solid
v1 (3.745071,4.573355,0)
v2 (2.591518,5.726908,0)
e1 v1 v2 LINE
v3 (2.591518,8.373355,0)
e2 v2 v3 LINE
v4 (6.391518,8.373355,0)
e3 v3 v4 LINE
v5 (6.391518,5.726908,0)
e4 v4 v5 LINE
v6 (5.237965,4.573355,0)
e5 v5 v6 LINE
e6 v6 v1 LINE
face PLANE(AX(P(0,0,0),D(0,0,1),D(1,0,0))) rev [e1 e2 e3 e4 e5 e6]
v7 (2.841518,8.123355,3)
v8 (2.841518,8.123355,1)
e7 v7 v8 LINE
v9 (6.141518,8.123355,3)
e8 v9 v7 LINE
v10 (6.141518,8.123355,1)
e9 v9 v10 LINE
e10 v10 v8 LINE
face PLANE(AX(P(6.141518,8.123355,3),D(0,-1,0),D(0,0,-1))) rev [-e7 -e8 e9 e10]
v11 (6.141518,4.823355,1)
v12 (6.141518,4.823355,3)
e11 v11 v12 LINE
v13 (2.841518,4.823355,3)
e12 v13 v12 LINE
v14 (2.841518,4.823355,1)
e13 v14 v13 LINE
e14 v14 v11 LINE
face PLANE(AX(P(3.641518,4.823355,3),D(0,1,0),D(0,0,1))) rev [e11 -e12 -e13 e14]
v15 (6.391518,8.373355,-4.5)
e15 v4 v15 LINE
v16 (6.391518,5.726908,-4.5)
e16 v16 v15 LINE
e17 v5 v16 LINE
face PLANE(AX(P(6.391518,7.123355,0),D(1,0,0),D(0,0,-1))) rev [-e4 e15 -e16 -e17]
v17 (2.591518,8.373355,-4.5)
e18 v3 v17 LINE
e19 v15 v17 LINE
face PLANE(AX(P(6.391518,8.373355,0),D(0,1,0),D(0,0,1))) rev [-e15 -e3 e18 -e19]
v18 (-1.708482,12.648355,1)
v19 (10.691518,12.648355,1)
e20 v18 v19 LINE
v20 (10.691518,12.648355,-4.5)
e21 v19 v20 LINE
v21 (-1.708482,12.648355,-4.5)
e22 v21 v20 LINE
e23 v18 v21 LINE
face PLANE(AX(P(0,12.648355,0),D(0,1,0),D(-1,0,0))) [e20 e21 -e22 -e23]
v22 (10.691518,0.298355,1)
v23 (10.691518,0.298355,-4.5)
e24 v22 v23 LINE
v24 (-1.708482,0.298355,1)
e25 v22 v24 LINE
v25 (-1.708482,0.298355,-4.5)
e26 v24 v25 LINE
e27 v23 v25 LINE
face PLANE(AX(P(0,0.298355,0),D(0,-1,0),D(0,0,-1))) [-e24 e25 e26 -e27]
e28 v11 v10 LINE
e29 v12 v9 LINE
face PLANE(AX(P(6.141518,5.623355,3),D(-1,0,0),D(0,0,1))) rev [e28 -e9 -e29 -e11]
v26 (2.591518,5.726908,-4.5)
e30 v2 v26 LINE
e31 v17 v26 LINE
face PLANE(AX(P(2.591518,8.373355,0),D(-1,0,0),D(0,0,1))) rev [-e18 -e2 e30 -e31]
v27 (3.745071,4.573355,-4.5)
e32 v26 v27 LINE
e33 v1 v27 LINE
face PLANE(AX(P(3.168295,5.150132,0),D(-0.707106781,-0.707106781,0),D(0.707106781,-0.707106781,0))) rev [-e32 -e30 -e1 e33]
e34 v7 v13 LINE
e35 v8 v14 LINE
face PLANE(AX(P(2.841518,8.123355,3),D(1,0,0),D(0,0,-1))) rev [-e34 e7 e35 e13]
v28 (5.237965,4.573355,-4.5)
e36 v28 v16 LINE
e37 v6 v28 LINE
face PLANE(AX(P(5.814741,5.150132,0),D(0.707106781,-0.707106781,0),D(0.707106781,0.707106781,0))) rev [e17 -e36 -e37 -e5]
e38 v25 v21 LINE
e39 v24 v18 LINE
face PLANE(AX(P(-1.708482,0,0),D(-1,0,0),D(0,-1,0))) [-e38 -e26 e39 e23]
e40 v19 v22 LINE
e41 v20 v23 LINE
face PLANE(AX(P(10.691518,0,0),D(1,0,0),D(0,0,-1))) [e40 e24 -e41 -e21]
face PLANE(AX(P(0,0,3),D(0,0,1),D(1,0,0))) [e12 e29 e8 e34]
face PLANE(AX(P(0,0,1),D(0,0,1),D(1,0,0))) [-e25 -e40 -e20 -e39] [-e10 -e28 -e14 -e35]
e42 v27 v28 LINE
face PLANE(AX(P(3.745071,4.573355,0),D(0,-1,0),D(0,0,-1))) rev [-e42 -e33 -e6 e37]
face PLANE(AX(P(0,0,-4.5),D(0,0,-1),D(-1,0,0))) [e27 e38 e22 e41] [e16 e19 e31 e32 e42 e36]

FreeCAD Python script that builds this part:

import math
import FreeCAD as App
import Part
import Sketcher
Q = App.Units.Quantity


def add_polygon(sketch, points):
    """Adds a closed chain of lines whose ends are joined by coincident constraints."""
    first, n = sketch.GeometryCount, len(points)
    for a, b in zip(points, points[1:] + points[:1]):
        sketch.addGeometry(Part.LineSegment(App.Vector(*a, 0), App.Vector(*b, 0)), False)
    for i in range(n):
        sketch.addConstraint(Sketcher.Constraint("Coincident", first + i, 2, first + (i + 1) % n, 1))

doc = App.newDocument("Part")
body = doc.addObject("PartDesign::Body", "Body")

sketch1 = body.newObject("Sketcher::SketchObject", "Sketch")
sketch1.AttachmentSupport = (doc.getObject("XY_Plane"), [""])
sketch1.MapMode = "FlatFace"
add_polygon(sketch1, [(6.141518, 8.123355), (2.841518, 8.123355), (2.841518, 5.623355), (3.641518, 4.823355), (5.341518, 4.823355), (6.141518, 5.623355)])
sketch1.addConstraint([
    Sketcher.Constraint("Horizontal", 0),
    Sketcher.Constraint("Vertical", 1),
    Sketcher.Constraint("Horizontal", 3),
    Sketcher.Constraint("Vertical", 5),
    Sketcher.Constraint("Perpendicular", 2, 4),
    Sketcher.Constraint("Horizontal", 1, 2, 4, 2),
    Sketcher.Constraint("Equal", 2, 4),
    Sketcher.Constraint("DistanceX", 0, 2, 0, 1, Q("3.3 mm")),
    Sketcher.Constraint("DistanceX", 3, 1, 3, 2, Q("1.7 mm")),
    Sketcher.Constraint("DistanceY", 1, 2, 1, 1, Q("2.5 mm")),
    Sketcher.Constraint("DistanceX", -1, 1, 0, 2, Q("2.841518 mm")),
    Sketcher.Constraint("DistanceY", -1, 1, 0, 2, Q("8.123355 mm")),
])
pad1 = body.newObject("PartDesign::Pad", "Pad")
pad1.Profile = sketch1
pad1.Length = 3

sketch2 = body.newObject("Sketcher::SketchObject", "Sketch001")
sketch2.AttachmentSupport = (doc.getObject("XY_Plane"), [""])
sketch2.MapMode = "FlatFace"
sketch2.AttachmentOffset = App.Placement(App.Vector(0, 0, 0), App.Rotation())
add_polygon(sketch2, [(-0.708482, 11.648355), (-0.708482, 1.298355), (9.691518, 1.298355), (9.691518, 11.648355)])
add_polygon(sketch2, [(2.841518, 5.623355), (2.841518, 8.123355), (6.141518, 8.123355), (6.141518, 5.623355), (5.341518, 4.823355), (3.641518, 4.823355)])
sketch2.addConstraint([
    Sketcher.Constraint("Vertical", 0),
    Sketcher.Constraint("Horizontal", 1),
    Sketcher.Constraint("Vertical", 2),
    Sketcher.Constraint("Horizontal", 3),
    Sketcher.Constraint("Vertical", 4),
    Sketcher.Constraint("Horizontal", 5),
    Sketcher.Constraint("Vertical", 6),
    Sketcher.Constraint("Horizontal", 8),
    Sketcher.Constraint("Perpendicular", 7, 9),
    Sketcher.Constraint("Horizontal", 6, 2, 9, 2),
    Sketcher.Constraint("Equal", 7, 9),
    Sketcher.Constraint("DistanceX", 1, 1, 1, 2, Q("10.4 mm")),
    Sketcher.Constraint("DistanceX", 5, 1, 5, 2, Q("3.3 mm")),
    Sketcher.Constraint("DistanceX", 8, 2, 8, 1, Q("1.7 mm")),
    Sketcher.Constraint("DistanceY", 4, 1, 4, 2, Q("2.5 mm")),
    Sketcher.Constraint("DistanceY", 0, 2, 0, 1, Q("10.35 mm")),
    Sketcher.Constraint("DistanceX", 3, 2, 4, 2, Q("3.55 mm")),
    Sketcher.Constraint("DistanceY", 4, 2, 3, 2, Q("3.525 mm")),
    Sketcher.Constraint("DistanceX", 0, 2, -1, 1, Q("0.708482 mm")),
    Sketcher.Constraint("DistanceY", -1, 1, 0, 2, Q("1.298355 mm")),
])
pad2 = body.newObject("PartDesign::Pad", "Pad001")
pad2.Profile = sketch2
pad2.Type = "TwoLengths"
pad2.Length = 1
pad2.Length2 = 3

sketch3 = body.newObject("Sketcher::SketchObject", "Sketch002")
sketch3.AttachmentSupport = (doc.getObject("XY_Plane"), [""])
sketch3.MapMode = "FlatFace"
sketch3.AttachmentOffset = App.Placement(App.Vector(0, 0, 1), App.Rotation())
sketch3.addGeometry([
    Part.LineSegment(App.Vector(-0.708482, 4.598355, 0), App.Vector(-0.708482, 1.298355, 0)),
    Part.LineSegment(App.Vector(-0.708482, 1.298355, 0), App.Vector(2.591518, 1.298355, 0)),
    Part.ArcOfCircle(Part.Circle(App.Vector(-0.708482, 1.298355, 0), App.Vector(0, 0, 1), 3.3), math.radians(0), math.radians(90)),
    Part.LineSegment(App.Vector(6.391518, 1.298355, 0), App.Vector(9.691518, 1.298355, 0)),
    Part.LineSegment(App.Vector(9.691518, 1.298355, 0), App.Vector(9.691518, 4.598355, 0)),
    Part.ArcOfCircle(Part.Circle(App.Vector(9.691518, 1.298355, 0), App.Vector(0, 0, 1), 3.3), math.radians(90), math.radians(180)),
    Part.LineSegment(App.Vector(9.691518, 8.348355, 0), App.Vector(9.691518, 11.648355, 0)),
    Part.LineSegment(App.Vector(9.691518, 11.648355, 0), App.Vector(6.391518, 11.648355, 0)),
    Part.ArcOfCircle(Part.Circle(App.Vector(9.691518, 11.648355, 0), App.Vector(0, 0, 1), 3.3), math.radians(180), math.radians(270)),
    Part.LineSegment(App.Vector(-0.708482, 11.648355, 0), App.Vector(-0.708482, 8.348355, 0)),
    Part.ArcOfCircle(Part.Circle(App.Vector(-0.708482, 11.648355, 0), App.Vector(0, 0, 1), 3.3), math.radians(-90), math.radians(0)),
    Part.LineSegment(App.Vector(2.591518, 11.648355, 0), App.Vector(-0.708482, 11.648355, 0)),
], False)
sketch3.addConstraint([
    Sketcher.Constraint("Coincident", 0, 2, 1, 1),
    Sketcher.Constraint("Coincident", 1, 2, 2, 1),
    Sketcher.Constraint("Coincident", 2, 2, 0, 1),
    Sketcher.Constraint("Coincident", 3, 2, 4, 1),
    Sketcher.Constraint("Coincident", 4, 2, 5, 1),
    Sketcher.Constraint("Coincident", 5, 2, 3, 1),
    Sketcher.Constraint("Coincident", 6, 2, 7, 1),
    Sketcher.Constraint("Coincident", 7, 2, 8, 1),
    Sketcher.Constraint("Coincident", 8, 2, 6, 1),
    Sketcher.Constraint("Coincident", 9, 2, 10, 1),
    Sketcher.Constraint("Coincident", 10, 2, 11, 1),
    Sketcher.Constraint("Coincident", 11, 2, 9, 1),
    Sketcher.Constraint("Vertical", 0),
    Sketcher.Constraint("Horizontal", 1),
    Sketcher.Constraint("Horizontal", 3),
    Sketcher.Constraint("Vertical", 4),
    Sketcher.Constraint("Vertical", 6),
    Sketcher.Constraint("Horizontal", 7),
    Sketcher.Constraint("Vertical", 9),
    Sketcher.Constraint("Horizontal", 11),
    Sketcher.Constraint("Coincident", 0, 2, 2, 3),
    Sketcher.Constraint("Coincident", 3, 2, 5, 3),
    Sketcher.Constraint("Coincident", 6, 2, 8, 3),
    Sketcher.Constraint("Coincident", 11, 2, 10, 3),
    Sketcher.Constraint("Equal", 2, 5),
    Sketcher.Constraint("Equal", 5, 8),
    Sketcher.Constraint("Equal", 8, 10),
    Sketcher.Constraint("Horizontal", 2, 3, 5, 3),
    Sketcher.Constraint("Horizontal", 8, 3, 10, 3),
    Sketcher.Constraint("Vertical", 5, 3, 8, 3),
    Sketcher.Constraint("Vertical", 2, 3, 10, 3),
    Sketcher.Constraint("Radius", 2, Q("3.3 mm")),
    Sketcher.Constraint("DistanceX", 2, 3, 5, 3, Q("10.4 mm")),
    Sketcher.Constraint("DistanceY", 5, 3, 8, 3, Q("10.35 mm")),
    Sketcher.Constraint("DistanceX", 2, 3, -1, 1, Q("0.708482 mm")),
    Sketcher.Constraint("DistanceY", -1, 1, 2, 3, Q("1.298355 mm")),
])
pocket1 = body.newObject("PartDesign::Pocket", "Pocket")
pocket1.Profile = sketch3
pocket1.Length = 4

sketch4 = body.newObject("Sketcher::SketchObject", "Sketch003")
sketch4.AttachmentSupport = (doc.getObject("XY_Plane"), [""])
sketch4.MapMode = "FlatFace"
sketch4.AttachmentOffset = App.Placement(App.Vector(0, 0, 3), App.Rotation())
add_polygon(sketch4, [(3.641518, 4.823355), (2.841518, 5.623355), (2.841518, 4.823355)])
add_polygon(sketch4, [(6.141518, 5.623355), (5.341518, 4.823355), (6.141518, 4.823355)])
sketch4.addConstraint([
    Sketcher.Constraint("Vertical", 1),
    Sketcher.Constraint("Horizontal", 2),
    Sketcher.Constraint("Horizontal", 4),
    Sketcher.Constraint("Vertical", 5),
    Sketcher.Constraint("Perpendicular", 0, 3),
    Sketcher.Constraint("Horizontal", 2, 2, 3, 2),
    Sketcher.Constraint("Horizontal", 0, 2, 5, 2),
    Sketcher.Constraint("Equal", 2, 4),
    Sketcher.Constraint("DistanceX", 2, 1, 2, 2, Q("0.8 mm")),
    Sketcher.Constraint("DistanceX", 2, 2, 3, 2, Q("1.7 mm")),
    Sketcher.Constraint("DistanceX", -1, 1, 0, 2, Q("2.841518 mm")),
    Sketcher.Constraint("DistanceY", -1, 1, 0, 2, Q("5.623355 mm")),
])
pad3 = body.newObject("PartDesign::Pad", "Pad002")
pad3.Profile = sketch4
pad3.Length = 2
pad3.Reversed = True

sketch5 = body.newObject("Sketcher::SketchObject", "Sketch004")
sketch5.AttachmentSupport = (doc.getObject("YZ_Plane"), [""])
sketch5.MapMode = "FlatFace"
sketch5.AttachmentOffset = App.Placement(App.Vector(0, 0, -0.708482), App.Rotation())
add_polygon(sketch5, [(8.348355, -3), (4.598355, -3), (4.598355, 1), (8.348355, 1)])
sketch5.addConstraint([
    Sketcher.Constraint("Horizontal", 0),
    Sketcher.Constraint("Vertical", 1),
    Sketcher.Constraint("Horizontal", 2),
    Sketcher.Constraint("Vertical", 3),
    Sketcher.Constraint("DistanceY", 1, 1, 1, 2, Q("4 mm")),
    Sketcher.Constraint("DistanceY", 0, 2, -1, 1, Q("3 mm")),
    Sketcher.Constraint("DistanceX", 0, 2, 0, 1, Q("3.75 mm")),
    Sketcher.Constraint("DistanceX", -1, 1, 0, 2, Q("4.598355 mm")),
])
pad4 = body.newObject("PartDesign::Pad", "Pad003")
pad4.Profile = sketch5
pad4.Length = 1
pad4.Reversed = True

sketch6 = body.newObject("Sketcher::SketchObject", "Sketch005")
sketch6.AttachmentSupport = (doc.getObject("YZ_Plane"), [""])
sketch6.MapMode = "FlatFace"
sketch6.AttachmentOffset = App.Placement(App.Vector(0, 0, 9.691518), App.Rotation())
add_polygon(sketch6, [(8.348355, 1), (4.598355, 1), (4.598355, -3), (8.348355, -3)])
sketch6.addConstraint([
    Sketcher.Constraint("Horizontal", 0),
    Sketcher.Constraint("Vertical", 1),
    Sketcher.Constraint("Horizontal", 2),
    Sketcher.Constraint("Vertical", 3),
    Sketcher.Constraint("DistanceY", 1, 2, 1, 1, Q("4 mm")),
    Sketcher.Constraint("DistanceY", -1, 1, 0, 2, Q("1 mm")),
    Sketcher.Constraint("DistanceX", 0, 2, 0, 1, Q("3.75 mm")),
    Sketcher.Constraint("DistanceX", -1, 1, 0, 2, Q("4.598355 mm")),
])
pad5 = body.newObject("PartDesign::Pad", "Pad004")
pad5.Profile = sketch6
pad5.Length = 1

sketch7 = body.newObject("Sketcher::SketchObject", "Sketch006")
sketch7.AttachmentSupport = (doc.getObject("XZ_Plane"), [""])
sketch7.MapMode = "FlatFace"
sketch7.AttachmentOffset = App.Placement(App.Vector(0, 0, -11.648355), App.Rotation())
add_polygon(sketch7, [(2.591518, -3), (2.591518, 1), (6.391518, 1), (6.391518, -3)])
sketch7.addConstraint([
    Sketcher.Constraint("Vertical", 0),
    Sketcher.Constraint("Horizontal", 1),
    Sketcher.Constraint("Vertical", 2),
    Sketcher.Constraint("Horizontal", 3),
    Sketcher.Constraint("DistanceY", 0, 1, 0, 2, Q("4 mm")),
    Sketcher.Constraint("DistanceX", 1, 1, 1, 2, Q("3.8 mm")),
    Sketcher.Constraint("DistanceY", -1, 1, 0, 2, Q("1 mm")),
    Sketcher.Constraint("DistanceX", -1, 1, 0, 2, Q("2.591518 mm")),
])
pad6 = body.newObject("PartDesign::Pad", "Pad005")
pad6.Profile = sketch7
pad6.Length = 1
pad6.Reversed = True

sketch8 = body.newObject("Sketcher::SketchObject", "Sketch007")
sketch8.AttachmentSupport = (doc.getObject("XZ_Plane"), [""])
sketch8.MapMode = "FlatFace"
sketch8.AttachmentOffset = App.Placement(App.Vector(0, 0, -1.298355), App.Rotation())
add_polygon(sketch8, [(2.591518, 1), (2.591518, -3), (6.391518, -3), (6.391518, 1)])
sketch8.addConstraint([
    Sketcher.Constraint("Vertical", 0),
    Sketcher.Constraint("Horizontal", 1),
    Sketcher.Constraint("Vertical", 2),
    Sketcher.Constraint("Horizontal", 3),
    Sketcher.Constraint("DistanceY", 0, 2, 0, 1, Q("4 mm")),
    Sketcher.Constraint("DistanceX", 1, 1, 1, 2, Q("3.8 mm")),
    Sketcher.Constraint("DistanceY", 0, 2, -1, 1, Q("3 mm")),
    Sketcher.Constraint("DistanceX", -1, 1, 0, 2, Q("2.591518 mm")),
])
pad7 = body.newObject("PartDesign::Pad", "Pad006")
pad7.Profile = sketch8
pad7.Length = 1

sketch9 = body.newObject("Sketcher::SketchObject", "Sketch008")
sketch9.AttachmentSupport = (doc.getObject("XY_Plane"), [""])
sketch9.MapMode = "FlatFace"
sketch9.AttachmentOffset = App.Placement(App.Vector(0, 0, -3), App.Rotation())
add_polygon(sketch9, [(6.641518, 8.623355), (6.641518, 5.623355), (5.341518, 4.323355), (3.641518, 4.323355), (2.341518, 5.623355), (2.341518, 8.623355)])
sketch9.addConstraint([
    Sketcher.Constraint("Vertical", 0),
    Sketcher.Constraint("Horizontal", 2),
    Sketcher.Constraint("Vertical", 4),
    Sketcher.Constraint("Horizontal", 5),
    Sketcher.Constraint("Perpendicular", 1, 3),
    Sketcher.Constraint("Horizontal", 0, 2, 3, 2),
    Sketcher.Constraint("Equal", 1, 3),
    Sketcher.Constraint("DistanceY", 0, 2, 0, 1, Q("3 mm")),
    Sketcher.Constraint("DistanceX", 2, 2, 2, 1, Q("1.7 mm")),
    Sketcher.Constraint("DistanceX", 5, 1, 5, 2, Q("4.3 mm")),
    Sketcher.Constraint("DistanceX", -1, 1, 0, 2, Q("6.641518 mm")),
    Sketcher.Constraint("DistanceY", -1, 1, 0, 2, Q("5.623355 mm")),
])
pocket2 = body.newObject("PartDesign::Pocket", "Pocket001")
pocket2.Profile = sketch9
pocket2.Length = 3
pocket2.Reversed = True

sketch10 = body.newObject("Sketcher::SketchObject", "Sketch009")
sketch10.AttachmentSupport = (doc.getObject("XY_Plane"), [""])
sketch10.MapMode = "FlatFace"
sketch10.AttachmentOffset = App.Placement(App.Vector(0, 0, -3), App.Rotation())
sketch10.addGeometry(Part.LineSegment(App.Vector(-0.708482, 4.598355, 0), App.Vector(-1.708482, 4.598355, 0)), False)
sketch10.addGeometry(Part.LineSegment(App.Vector(-1.708482, 4.598355, 0), App.Vector(-1.708482, 8.348355, 0)), False)
sketch10.addGeometry(Part.LineSegment(App.Vector(-1.708482, 8.348355, 0), App.Vector(-0.708482, 8.348355, 0)), False)
sketch10.addGeometry(Part.ArcOfCircle(Part.Circle(App.Vector(-0.708482, 11.648355, 0), App.Vector(0, 0, 1), 3.3), math.radians(-90), math.radians(0)), False)
sketch10.addGeometry(Part.LineSegment(App.Vector(2.591518, 11.648355, 0), App.Vector(2.591518, 12.648355, 0)), False)
sketch10.addGeometry(Part.LineSegment(App.Vector(2.591518, 12.648355, 0), App.Vector(6.391518, 12.648355, 0)), False)
sketch10.addGeometry(Part.LineSegment(App.Vector(6.391518, 12.648355, 0), App.Vector(6.391518, 11.648355, 0)), False)
sketch10.addGeometry(Part.ArcOfCircle(Part.Circle(App.Vector(9.691518, 11.648355, 0), App.Vector(0, 0, 1), 3.3), math.radians(180), math.radians(270)), False)
sketch10.addGeometry(Part.LineSegment(App.Vector(9.691518, 8.348355, 0), App.Vector(10.691518, 8.348355, 0)), False)
sketch10.addGeometry(Part.LineSegment(App.Vector(10.691518, 8.348355, 0), App.Vector(10.691518, 4.598355, 0)), False)
sketch10.addGeometry(Part.LineSegment(App.Vector(10.691518, 4.598355, 0), App.Vector(9.691518, 4.598355, 0)), False)
sketch10.addGeometry(Part.ArcOfCircle(Part.Circle(App.Vector(9.691518, 1.298355, 0), App.Vector(0, 0, 1), 3.3), math.radians(90), math.radians(180)), False)
sketch10.addGeometry(Part.LineSegment(App.Vector(6.391518, 1.298355, 0), App.Vector(6.391518, 0.298355, 0)), False)
sketch10.addGeometry(Part.LineSegment(App.Vector(6.391518, 0.298355, 0), App.Vector(2.591518, 0.298355, 0)), False)
sketch10.addGeometry(Part.LineSegment(App.Vector(2.591518, 0.298355, 0), App.Vector(2.591518, 1.298355, 0)), False)
sketch10.addGeometry(Part.ArcOfCircle(Part.Circle(App.Vector(-0.708482, 1.298355, 0), App.Vector(0, 0, 1), 3.3), math.radians(0), math.radians(90)), False)
add_polygon(sketch10, [(5.341518, 4.323355), (6.641518, 5.623355), (6.641518, 8.623355), (2.341518, 8.623355), (2.341518, 5.623355), (3.641518, 4.323355)])
sketch10.addConstraint([
    Sketcher.Constraint("Coincident", 0, 2, 1, 1),
    Sketcher.Constraint("Coincident", 1, 2, 2, 1),
    Sketcher.Constraint("Tangent", 2, 2, 3, 1),
    Sketcher.Constraint("Tangent", 3, 2, 4, 1),
    Sketcher.Constraint("Coincident", 4, 2, 5, 1),
    Sketcher.Constraint("Coincident", 5, 2, 6, 1),
    Sketcher.Constraint("Tangent", 6, 2, 7, 1),
    Sketcher.Constraint("Tangent", 7, 2, 8, 1),
    Sketcher.Constraint("Coincident", 8, 2, 9, 1),
    Sketcher.Constraint("Coincident", 9, 2, 10, 1),
    Sketcher.Constraint("Tangent", 10, 2, 11, 1),
    Sketcher.Constraint("Tangent", 11, 2, 12, 1),
    Sketcher.Constraint("Coincident", 12, 2, 13, 1),
    Sketcher.Constraint("Coincident", 13, 2, 14, 1),
    Sketcher.Constraint("Tangent", 14, 2, 15, 1),
    Sketcher.Constraint("Tangent", 15, 2, 0, 1),
    Sketcher.Constraint("Horizontal", 0),
    Sketcher.Constraint("Vertical", 1),
    Sketcher.Constraint("Horizontal", 2),
    Sketcher.Constraint("Vertical", 4),
    Sketcher.Constraint("Horizontal", 5),
    Sketcher.Constraint("Vertical", 6),
    Sketcher.Constraint("Horizontal", 8),
    Sketcher.Constraint("Vertical", 9),
    Sketcher.Constraint("Horizontal", 10),
    Sketcher.Constraint("Vertical", 12),
    Sketcher.Constraint("Horizontal", 13),
    Sketcher.Constraint("Vertical", 14),
    Sketcher.Constraint("Vertical", 17),
    Sketcher.Constraint("Horizontal", 18),
    Sketcher.Constraint("Vertical", 19),
    Sketcher.Constraint("Horizontal", 21),
    Sketcher.Constraint("Equal", 3, 7),
    Sketcher.Constraint("Equal", 7, 11),
    Sketcher.Constraint("Equal", 11, 15),
    Sketcher.Constraint("Perpendicular", 16, 20),
    Sketcher.Constraint("Horizontal", 3, 3, 7, 3),
    Sketcher.Constraint("Horizontal", 11, 3, 15, 3),
    Sketcher.Constraint("Horizontal", 16, 2, 19, 2),
    Sketcher.Constraint("Vertical", 7, 3, 11, 3),
    Sketcher.Constraint("Vertical", 3, 3, 15, 3),
    Sketcher.Constraint("Equal", 2, 8),
    Sketcher.Constraint("Equal", 10, 4),
    Sketcher.Constraint("Equal", 6, 12),
    Sketcher.Constraint("Equal", 16, 20),
    Sketcher.Constraint("Radius", 3, Q("3.3 mm")),
    Sketcher.Constraint("DistanceX", 0, 2, 0, 1, Q("1 mm")),
    Sketcher.Constraint("DistanceY", 17, 1, 17, 2, Q("3 mm")),
    Sketcher.Constraint("DistanceX", 5, 1, 5, 2, Q("3.8 mm")),
    Sketcher.Constraint("DistanceX", 18, 2, 18, 1, Q("4.3 mm")),
    Sketcher.Constraint("DistanceX", 21, 1, 21, 2, Q("1.7 mm")),
    Sketcher.Constraint("DistanceY", 1, 1, 1, 2, Q("3.75 mm")),
    Sketcher.Constraint("DistanceX", 16, 2, 10, 2, Q("3.05 mm")),
    Sketcher.Constraint("DistanceY", 10, 2, 16, 2, Q("1.025 mm")),
    Sketcher.Constraint("DistanceX", 3, 3, -1, 1, Q("0.708482 mm")),
    Sketcher.Constraint("DistanceY", -1, 1, 3, 3, Q("11.648355 mm")),
])
pad8 = body.newObject("PartDesign::Pad", "Pad007")
pad8.Profile = sketch10
pad8.Length = 3
pad8.Reversed = True

sketch11 = body.newObject("Sketcher::SketchObject", "Sketch010")
sketch11.AttachmentSupport = (doc.getObject("XY_Plane"), [""])
sketch11.MapMode = "FlatFace"
sketch11.AttachmentOffset = App.Placement(App.Vector(0, 0, -6), App.Rotation())
add_polygon(sketch11, [(2.341518, 8.623355), (6.641518, 8.623355), (6.641518, 5.623355), (5.341518, 4.323355), (3.641518, 4.323355), (2.341518, 5.623355)])
add_polygon(sketch11, [(6.391518, 5.726908), (6.391518, 8.373355), (2.591518, 8.373355), (2.591518, 5.726908), (3.168295, 5.150132), (3.745071, 4.573355), (5.237965, 4.573355)])
sketch11.addConstraint([
    Sketcher.Constraint("Horizontal", 0),
    Sketcher.Constraint("Vertical", 1),
    Sketcher.Constraint("Horizontal", 3),
    Sketcher.Constraint("Vertical", 5),
    Sketcher.Constraint("Vertical", 6),
    Sketcher.Constraint("Horizontal", 7),
    Sketcher.Constraint("Vertical", 8),
    Sketcher.Constraint("Horizontal", 11),
    Sketcher.Constraint("Perpendicular", 2, 4),
    Sketcher.Constraint("Parallel", 4, 9),
    Sketcher.Constraint("Parallel", 9, 10),
    Sketcher.Constraint("Perpendicular", 10, 12),
    Sketcher.Constraint("Horizontal", 1, 2, 4, 2),
    Sketcher.Constraint("Horizontal", 8, 2, 12, 2),
    Sketcher.Constraint("Equal", 2, 4),
    Sketcher.Constraint("Equal", 9, 10),
    Sketcher.Constraint("DistanceY", 1, 2, 1, 1, Q("3 mm")),
    Sketcher.Constraint("DistanceX", 0, 1, 0, 2, Q("4.3 mm")),
    Sketcher.Constraint("DistanceX", 3, 2, 3, 1, Q("1.7 mm")),
    Sketcher.Constraint("DistanceX", 7, 2, 7, 1, Q("3.8 mm")),
    Sketcher.Constraint("DistanceX", 6, 2, 0, 2, Q("0.25 mm")),
    Sketcher.Constraint("DistanceY", 6, 2, 0, 2, Q("0.25 mm")),
    Sketcher.Constraint("DistanceY", 3, 2, 10, 2, Q("0.25 mm")),
    Sketcher.Constraint("Distance", 12, Q("1.631371 mm")),
    Sketcher.Constraint("DistanceX", -1, 1, 0, 2, Q("6.641518 mm")),
    Sketcher.Constraint("DistanceY", -1, 1, 8, 2, Q("5.726908 mm")),
])
pad9 = body.newObject("PartDesign::Pad", "Pad008")
pad9.Profile = sketch11
pad9.Length = 6

sketch12 = body.newObject("Sketcher::SketchObject", "Sketch011")
sketch12.AttachmentSupport = (doc.getObject("XY_Plane"), [""])
sketch12.MapMode = "FlatFace"
sketch12.AttachmentOffset = App.Placement(App.Vector(0, 0, -6), App.Rotation())
add_polygon(sketch12, [(-1.708482, 12.648355), (10.691518, 12.648355), (10.691518, 0.298355), (-1.708482, 0.298355)])
add_polygon(sketch12, [(5.237965, 4.573355), (6.391518, 5.726908), (6.391518, 8.373355), (2.591518, 8.373355), (2.591518, 5.726908), (3.745071, 4.573355)])
sketch12.addConstraint([
    Sketcher.Constraint("Horizontal", 0),
    Sketcher.Constraint("Vertical", 1),
    Sketcher.Constraint("Horizontal", 2),
    Sketcher.Constraint("Vertical", 3),
    Sketcher.Constraint("Vertical", 5),
    Sketcher.Constraint("Horizontal", 6),
    Sketcher.Constraint("Vertical", 7),
    Sketcher.Constraint("Horizontal", 9),
    Sketcher.Constraint("Perpendicular", 4, 8),
    Sketcher.Constraint("Horizontal", 4, 2, 7, 2),
    Sketcher.Constraint("Equal", 4, 8),
    Sketcher.Constraint("DistanceX", 0, 1, 0, 2, Q("12.4 mm")),
    Sketcher.Constraint("DistanceX", 6, 2, 6, 1, Q("3.8 mm")),
    Sketcher.Constraint("DistanceY", 1, 2, 1, 1, Q("12.35 mm")),
    Sketcher.Constraint("DistanceX", 4, 2, 1, 2, Q("4.3 mm")),
    Sketcher.Constraint("DistanceY", 8, 2, 6, 2, Q("3.8 mm")),
    Sketcher.Constraint("DistanceY", 5, 2, 0, 2, Q("4.275 mm")),
    Sketcher.Constraint("Distance", 4, Q("1.631371 mm")),
    Sketcher.Constraint("DistanceX", -1, 1, 0, 2, Q("10.691518 mm")),
    Sketcher.Constraint("DistanceY", -1, 1, 4, 2, Q("5.726908 mm")),
])
pad10 = body.newObject("PartDesign::Pad", "Pad009")
pad10.Profile = sketch12
pad10.Length = 7

sketch13 = body.newObject("Sketcher::SketchObject", "Sketch012")
sketch13.AttachmentSupport = (doc.getObject("XY_Plane"), [""])
sketch13.MapMode = "FlatFace"
sketch13.AttachmentOffset = App.Placement(App.Vector(0, 0, -6), App.Rotation())
add_polygon(sketch13, [(10.691518, 12.648355), (10.691518, 0.298355), (-1.708482, 0.298355), (-1.708482, 12.648355)])
sketch13.addConstraint([
    Sketcher.Constraint("Vertical", 0),
    Sketcher.Constraint("Horizontal", 1),
    Sketcher.Constraint("Vertical", 2),
    Sketcher.Constraint("Horizontal", 3),
    Sketcher.Constraint("DistanceX", 1, 2, 1, 1, Q("12.4 mm")),
    Sketcher.Constraint("DistanceY", 0, 2, 0, 1, Q("12.35 mm")),
    Sketcher.Constraint("DistanceX", -1, 1, 0, 2, Q("10.691518 mm")),
    Sketcher.Constraint("DistanceY", -1, 1, 0, 2, Q("0.298355 mm")),
])
pocket3 = body.newObject("PartDesign::Pocket", "Pocket002")
pocket3.Profile = sketch13
pocket3.Length = 1.5
pocket3.Reversed = True

doc.recompute()
